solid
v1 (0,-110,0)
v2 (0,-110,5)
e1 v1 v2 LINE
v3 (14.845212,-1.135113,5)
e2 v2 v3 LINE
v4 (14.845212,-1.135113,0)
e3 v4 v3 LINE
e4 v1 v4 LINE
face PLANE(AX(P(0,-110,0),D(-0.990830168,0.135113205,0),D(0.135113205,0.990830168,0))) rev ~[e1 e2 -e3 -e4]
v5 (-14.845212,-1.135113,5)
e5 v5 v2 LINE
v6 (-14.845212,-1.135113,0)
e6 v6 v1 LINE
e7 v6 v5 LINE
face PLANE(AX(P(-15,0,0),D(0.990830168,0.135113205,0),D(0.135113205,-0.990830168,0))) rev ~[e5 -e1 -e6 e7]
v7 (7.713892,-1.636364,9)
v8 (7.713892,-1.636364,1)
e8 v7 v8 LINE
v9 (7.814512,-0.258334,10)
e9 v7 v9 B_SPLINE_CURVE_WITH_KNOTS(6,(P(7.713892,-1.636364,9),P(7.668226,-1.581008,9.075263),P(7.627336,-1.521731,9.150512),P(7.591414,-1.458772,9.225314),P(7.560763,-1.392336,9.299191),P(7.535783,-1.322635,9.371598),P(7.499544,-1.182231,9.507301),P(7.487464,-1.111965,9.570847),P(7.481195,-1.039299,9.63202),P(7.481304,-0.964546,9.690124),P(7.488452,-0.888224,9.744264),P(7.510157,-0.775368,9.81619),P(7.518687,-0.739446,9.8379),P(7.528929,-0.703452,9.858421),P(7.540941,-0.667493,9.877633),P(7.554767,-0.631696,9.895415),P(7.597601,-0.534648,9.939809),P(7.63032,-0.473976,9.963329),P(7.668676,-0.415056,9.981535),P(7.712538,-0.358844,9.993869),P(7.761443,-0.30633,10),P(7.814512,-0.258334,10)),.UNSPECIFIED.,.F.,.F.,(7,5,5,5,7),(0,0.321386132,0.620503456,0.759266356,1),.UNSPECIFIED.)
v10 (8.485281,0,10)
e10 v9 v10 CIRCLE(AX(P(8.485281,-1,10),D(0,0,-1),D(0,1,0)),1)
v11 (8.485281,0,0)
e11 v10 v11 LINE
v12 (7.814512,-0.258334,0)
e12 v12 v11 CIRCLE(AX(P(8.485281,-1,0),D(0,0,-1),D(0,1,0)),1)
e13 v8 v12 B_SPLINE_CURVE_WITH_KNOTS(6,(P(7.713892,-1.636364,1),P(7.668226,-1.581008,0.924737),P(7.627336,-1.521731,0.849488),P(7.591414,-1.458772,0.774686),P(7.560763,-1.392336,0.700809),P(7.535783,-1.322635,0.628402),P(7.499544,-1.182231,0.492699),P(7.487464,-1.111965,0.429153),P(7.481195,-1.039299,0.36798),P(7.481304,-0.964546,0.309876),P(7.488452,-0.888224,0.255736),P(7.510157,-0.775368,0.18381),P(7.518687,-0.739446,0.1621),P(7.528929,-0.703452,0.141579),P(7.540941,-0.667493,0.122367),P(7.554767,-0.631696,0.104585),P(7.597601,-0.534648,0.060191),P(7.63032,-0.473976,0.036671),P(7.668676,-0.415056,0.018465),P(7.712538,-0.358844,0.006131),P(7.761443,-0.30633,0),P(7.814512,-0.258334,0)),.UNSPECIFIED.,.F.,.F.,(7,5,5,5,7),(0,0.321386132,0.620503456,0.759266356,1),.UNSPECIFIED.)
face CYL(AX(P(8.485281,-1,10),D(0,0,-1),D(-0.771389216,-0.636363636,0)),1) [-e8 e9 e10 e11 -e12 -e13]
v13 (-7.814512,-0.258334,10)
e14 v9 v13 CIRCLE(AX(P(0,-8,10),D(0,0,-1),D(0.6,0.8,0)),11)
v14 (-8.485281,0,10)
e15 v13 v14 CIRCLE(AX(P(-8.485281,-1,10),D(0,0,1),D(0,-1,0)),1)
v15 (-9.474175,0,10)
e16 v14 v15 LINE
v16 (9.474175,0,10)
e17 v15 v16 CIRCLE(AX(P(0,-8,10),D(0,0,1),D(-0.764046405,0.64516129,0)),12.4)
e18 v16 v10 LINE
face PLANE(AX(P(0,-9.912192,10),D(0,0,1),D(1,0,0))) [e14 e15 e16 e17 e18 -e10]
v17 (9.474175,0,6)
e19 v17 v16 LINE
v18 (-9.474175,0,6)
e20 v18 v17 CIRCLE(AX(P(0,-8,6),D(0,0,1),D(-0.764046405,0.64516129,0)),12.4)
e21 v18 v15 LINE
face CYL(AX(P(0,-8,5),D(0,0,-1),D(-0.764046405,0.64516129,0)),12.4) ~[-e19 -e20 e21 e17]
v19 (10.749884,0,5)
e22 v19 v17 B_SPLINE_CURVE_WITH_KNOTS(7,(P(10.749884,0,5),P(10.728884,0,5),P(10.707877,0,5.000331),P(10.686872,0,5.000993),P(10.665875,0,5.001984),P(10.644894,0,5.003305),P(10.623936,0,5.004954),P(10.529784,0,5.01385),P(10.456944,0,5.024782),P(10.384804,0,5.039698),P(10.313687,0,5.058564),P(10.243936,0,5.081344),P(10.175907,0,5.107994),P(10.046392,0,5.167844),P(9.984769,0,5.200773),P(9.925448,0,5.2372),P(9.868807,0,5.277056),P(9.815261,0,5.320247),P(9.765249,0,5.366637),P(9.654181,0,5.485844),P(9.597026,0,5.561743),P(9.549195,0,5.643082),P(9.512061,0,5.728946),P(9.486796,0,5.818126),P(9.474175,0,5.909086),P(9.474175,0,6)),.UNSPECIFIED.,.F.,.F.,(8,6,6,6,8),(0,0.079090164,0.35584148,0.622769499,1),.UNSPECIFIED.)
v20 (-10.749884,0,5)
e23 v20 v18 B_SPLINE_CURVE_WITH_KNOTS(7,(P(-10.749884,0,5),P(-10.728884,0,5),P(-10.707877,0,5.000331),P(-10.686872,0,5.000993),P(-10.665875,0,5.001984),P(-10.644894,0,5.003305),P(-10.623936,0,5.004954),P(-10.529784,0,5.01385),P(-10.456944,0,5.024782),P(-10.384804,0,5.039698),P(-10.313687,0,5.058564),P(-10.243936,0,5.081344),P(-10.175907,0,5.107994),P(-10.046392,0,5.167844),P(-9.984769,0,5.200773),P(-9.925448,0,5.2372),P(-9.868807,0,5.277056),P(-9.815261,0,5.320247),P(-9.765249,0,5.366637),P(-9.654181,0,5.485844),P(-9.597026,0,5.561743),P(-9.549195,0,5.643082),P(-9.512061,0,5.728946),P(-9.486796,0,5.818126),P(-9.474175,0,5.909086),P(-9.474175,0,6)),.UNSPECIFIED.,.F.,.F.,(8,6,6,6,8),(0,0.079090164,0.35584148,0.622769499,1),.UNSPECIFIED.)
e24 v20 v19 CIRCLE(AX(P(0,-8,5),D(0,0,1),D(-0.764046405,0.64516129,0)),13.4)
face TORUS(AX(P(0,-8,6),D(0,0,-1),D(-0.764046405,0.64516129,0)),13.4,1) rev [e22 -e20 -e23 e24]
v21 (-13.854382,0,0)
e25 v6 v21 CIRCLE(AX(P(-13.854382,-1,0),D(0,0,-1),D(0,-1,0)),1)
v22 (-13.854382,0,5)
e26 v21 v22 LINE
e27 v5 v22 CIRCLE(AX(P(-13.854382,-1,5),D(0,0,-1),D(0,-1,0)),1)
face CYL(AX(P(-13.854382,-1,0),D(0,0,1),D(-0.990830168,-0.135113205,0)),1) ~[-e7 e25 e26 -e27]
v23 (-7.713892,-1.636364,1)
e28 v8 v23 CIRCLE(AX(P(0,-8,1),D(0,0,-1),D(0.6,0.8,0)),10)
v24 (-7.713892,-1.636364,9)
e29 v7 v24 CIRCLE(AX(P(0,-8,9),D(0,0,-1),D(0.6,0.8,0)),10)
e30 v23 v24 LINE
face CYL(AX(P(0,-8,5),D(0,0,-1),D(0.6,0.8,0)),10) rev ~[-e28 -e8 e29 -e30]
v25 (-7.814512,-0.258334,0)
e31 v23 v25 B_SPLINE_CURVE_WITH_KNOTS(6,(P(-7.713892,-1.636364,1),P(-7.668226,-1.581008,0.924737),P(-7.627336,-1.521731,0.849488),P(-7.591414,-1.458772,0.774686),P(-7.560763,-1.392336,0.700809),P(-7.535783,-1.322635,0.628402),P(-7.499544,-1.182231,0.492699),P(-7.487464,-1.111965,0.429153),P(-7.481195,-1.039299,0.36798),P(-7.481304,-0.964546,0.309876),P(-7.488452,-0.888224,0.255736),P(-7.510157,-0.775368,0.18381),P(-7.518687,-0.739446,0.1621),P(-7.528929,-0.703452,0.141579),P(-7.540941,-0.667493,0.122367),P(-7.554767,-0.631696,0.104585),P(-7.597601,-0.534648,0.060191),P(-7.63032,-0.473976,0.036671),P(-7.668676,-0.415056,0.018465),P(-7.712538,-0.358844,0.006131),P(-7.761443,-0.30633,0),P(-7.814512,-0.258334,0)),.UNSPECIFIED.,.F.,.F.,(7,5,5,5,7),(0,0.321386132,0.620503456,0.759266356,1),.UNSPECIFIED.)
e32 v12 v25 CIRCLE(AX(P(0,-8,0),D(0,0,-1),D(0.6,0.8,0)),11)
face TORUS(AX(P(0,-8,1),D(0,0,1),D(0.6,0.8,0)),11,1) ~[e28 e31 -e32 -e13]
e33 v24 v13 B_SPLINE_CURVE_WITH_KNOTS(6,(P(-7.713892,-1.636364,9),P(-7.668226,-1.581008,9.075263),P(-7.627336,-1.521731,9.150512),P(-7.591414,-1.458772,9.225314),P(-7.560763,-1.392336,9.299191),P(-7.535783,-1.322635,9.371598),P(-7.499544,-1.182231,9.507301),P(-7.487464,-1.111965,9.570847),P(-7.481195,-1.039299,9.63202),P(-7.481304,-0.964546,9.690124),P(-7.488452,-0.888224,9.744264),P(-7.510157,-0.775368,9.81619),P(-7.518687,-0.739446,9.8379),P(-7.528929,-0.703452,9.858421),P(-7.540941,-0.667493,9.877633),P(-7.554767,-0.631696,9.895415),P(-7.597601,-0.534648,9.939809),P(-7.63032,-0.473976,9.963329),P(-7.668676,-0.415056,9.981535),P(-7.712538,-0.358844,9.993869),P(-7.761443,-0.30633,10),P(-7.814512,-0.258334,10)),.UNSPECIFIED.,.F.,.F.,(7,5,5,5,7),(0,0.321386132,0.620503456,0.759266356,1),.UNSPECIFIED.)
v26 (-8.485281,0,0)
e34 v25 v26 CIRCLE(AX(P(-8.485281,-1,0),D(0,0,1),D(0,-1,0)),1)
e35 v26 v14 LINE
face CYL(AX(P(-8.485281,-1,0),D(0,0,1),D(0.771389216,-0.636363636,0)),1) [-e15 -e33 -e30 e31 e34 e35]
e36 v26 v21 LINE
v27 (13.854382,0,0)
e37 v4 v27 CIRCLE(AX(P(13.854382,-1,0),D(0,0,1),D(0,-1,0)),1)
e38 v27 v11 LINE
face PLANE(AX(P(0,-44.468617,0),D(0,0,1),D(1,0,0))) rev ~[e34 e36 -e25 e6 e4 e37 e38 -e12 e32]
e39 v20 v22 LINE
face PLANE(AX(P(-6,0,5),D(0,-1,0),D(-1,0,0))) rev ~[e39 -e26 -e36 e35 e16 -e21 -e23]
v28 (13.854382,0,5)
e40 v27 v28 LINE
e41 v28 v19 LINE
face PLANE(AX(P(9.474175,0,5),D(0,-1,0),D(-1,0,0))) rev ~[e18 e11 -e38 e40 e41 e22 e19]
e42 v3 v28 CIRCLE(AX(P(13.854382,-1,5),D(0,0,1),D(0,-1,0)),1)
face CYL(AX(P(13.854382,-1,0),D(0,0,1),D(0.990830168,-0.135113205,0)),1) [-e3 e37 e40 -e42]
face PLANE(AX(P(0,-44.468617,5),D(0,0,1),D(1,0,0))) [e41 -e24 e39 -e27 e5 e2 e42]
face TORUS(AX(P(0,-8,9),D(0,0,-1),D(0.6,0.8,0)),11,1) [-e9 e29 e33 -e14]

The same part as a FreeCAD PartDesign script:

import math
import FreeCAD as App
import Part
import Sketcher


def edges_at(feature, points):
    """Names of the edges that pass closest to the given points."""
    edges = feature.Shape.Edges
    near = lambda p: min(range(len(edges)), key=lambda i: edges[i].distToShape(Part.Vertex(*p))[0])
    return sorted({f"Edge{near(p) + 1}" for p in points})

doc = App.newDocument("Part")
body = doc.addObject("PartDesign::Body", "Body")

sketch1 = body.newObject("Sketcher::SketchObject", "Sketch")
sketch1.AttachmentSupport = (doc.getObject("XY_Plane"), [""])
sketch1.MapMode = "FlatFace"
sketch1.addGeometry([
    Part.LineSegment(App.Vector(-15, 0, 0), App.Vector(0, -110, 0)),
    Part.LineSegment(App.Vector(0, -110, 0), App.Vector(15, 0, 0)),
    Part.LineSegment(App.Vector(15, 0, 0), App.Vector(6, 0, 0)),
    Part.ArcOfCircle(Part.Circle(App.Vector(0, -8, 0), App.Vector(0, 0, 1), 10), math.radians(126.869898), math.radians(413.130102)),
    Part.LineSegment(App.Vector(-6, 0, 0), App.Vector(-15, 0, 0)),
], False)
sketch1.addConstraint([
    Sketcher.Constraint("Coincident", 0, 2, 1, 1),
    Sketcher.Constraint("Coincident", 1, 2, 2, 1),
    Sketcher.Constraint("Coincident", 2, 2, 3, 2),
    Sketcher.Constraint("Coincident", 3, 1, 4, 1),
    Sketcher.Constraint("Coincident", 4, 2, 0, 1),
    Sketcher.Constraint("Horizontal", 2),
    Sketcher.Constraint("Horizontal", 4),
    Sketcher.Constraint("Symmetric", 2, 2, 3, 1, -1, 1),
    Sketcher.Constraint("Symmetric", 1, 2, 4, 2, -2),
    Sketcher.Constraint("PointOnObject", 0, 2, -2),
    Sketcher.Constraint("Radius", 3, 10.0),
    Sketcher.Constraint("DistanceX", 2, 2, 2, 1, 9.0),
    Sketcher.Constraint("DistanceY", 3, 3, -1, 1, 8.0),
    Sketcher.Constraint("DistanceY", 0, 2, -1, 1, 110.0),
])
pad1 = body.newObject("PartDesign::Pad", "Pad")
pad1.Profile = sketch1
pad1.Length = 5

sketch2 = body.newObject("Sketcher::SketchObject", "Sketch001")
sketch2.AttachmentSupport = (doc.getObject("XY_Plane"), [""])
sketch2.MapMode = "FlatFace"
sketch2.AttachmentOffset = App.Placement(App.Vector(0, 0, 5), App.Rotation())
sketch2.addGeometry([
    Part.ArcOfCircle(Part.Circle(App.Vector(0, -8, 0), App.Vector(0, 0, 1), 10), math.radians(126.869898), math.radians(413.130102)),
    Part.LineSegment(App.Vector(-6, 0, 0), App.Vector(-9.474175, 0, 0)),
    Part.ArcOfCircle(Part.Circle(App.Vector(0, -8, 0), App.Vector(0, 0, 1), 12.4), math.radians(139.82223), math.radians(400.17777)),
    Part.LineSegment(App.Vector(9.474175, 0, 0), App.Vector(6, 0, 0)),
], False)
sketch2.addConstraint([
    Sketcher.Constraint("Coincident", 0, 1, 1, 1),
    Sketcher.Constraint("Coincident", 1, 2, 2, 1),
    Sketcher.Constraint("Coincident", 2, 2, 3, 1),
    Sketcher.Constraint("Coincident", 3, 2, 0, 2),
    Sketcher.Constraint("Horizontal", 1),
    Sketcher.Constraint("Horizontal", 3),
    Sketcher.Constraint("Coincident", 2, 3, 0, 3),
    Sketcher.Constraint("Symmetric", 1, 2, 2, 2, -1, 1),
    Sketcher.Constraint("PointOnObject", 0, 3, -2),
    Sketcher.Constraint("Radius", 0, 10.0),
    Sketcher.Constraint("Radius", 2, 12.4),
    Sketcher.Constraint("DistanceY", 0, 3, -1, 1, 8.0),
])
pad2 = body.newObject("PartDesign::Pad", "Pad001")
pad2.Profile = sketch2
pad2.Length = 5
doc.recompute()

fillet = body.newObject("PartDesign::Fillet", "Fillet")
fillet.Base = (pad2, edges_at(pad2, [
    (-6, 0, 5),
    (6, 0, 5),
    (0, -18, 10),
    (0, -18, 0),
    (0, -20.4, 5),
    (-15, 0, 2.5),
    (15, 0, 2.5),
]))
fillet.Radius = 1

doc.recompute()
